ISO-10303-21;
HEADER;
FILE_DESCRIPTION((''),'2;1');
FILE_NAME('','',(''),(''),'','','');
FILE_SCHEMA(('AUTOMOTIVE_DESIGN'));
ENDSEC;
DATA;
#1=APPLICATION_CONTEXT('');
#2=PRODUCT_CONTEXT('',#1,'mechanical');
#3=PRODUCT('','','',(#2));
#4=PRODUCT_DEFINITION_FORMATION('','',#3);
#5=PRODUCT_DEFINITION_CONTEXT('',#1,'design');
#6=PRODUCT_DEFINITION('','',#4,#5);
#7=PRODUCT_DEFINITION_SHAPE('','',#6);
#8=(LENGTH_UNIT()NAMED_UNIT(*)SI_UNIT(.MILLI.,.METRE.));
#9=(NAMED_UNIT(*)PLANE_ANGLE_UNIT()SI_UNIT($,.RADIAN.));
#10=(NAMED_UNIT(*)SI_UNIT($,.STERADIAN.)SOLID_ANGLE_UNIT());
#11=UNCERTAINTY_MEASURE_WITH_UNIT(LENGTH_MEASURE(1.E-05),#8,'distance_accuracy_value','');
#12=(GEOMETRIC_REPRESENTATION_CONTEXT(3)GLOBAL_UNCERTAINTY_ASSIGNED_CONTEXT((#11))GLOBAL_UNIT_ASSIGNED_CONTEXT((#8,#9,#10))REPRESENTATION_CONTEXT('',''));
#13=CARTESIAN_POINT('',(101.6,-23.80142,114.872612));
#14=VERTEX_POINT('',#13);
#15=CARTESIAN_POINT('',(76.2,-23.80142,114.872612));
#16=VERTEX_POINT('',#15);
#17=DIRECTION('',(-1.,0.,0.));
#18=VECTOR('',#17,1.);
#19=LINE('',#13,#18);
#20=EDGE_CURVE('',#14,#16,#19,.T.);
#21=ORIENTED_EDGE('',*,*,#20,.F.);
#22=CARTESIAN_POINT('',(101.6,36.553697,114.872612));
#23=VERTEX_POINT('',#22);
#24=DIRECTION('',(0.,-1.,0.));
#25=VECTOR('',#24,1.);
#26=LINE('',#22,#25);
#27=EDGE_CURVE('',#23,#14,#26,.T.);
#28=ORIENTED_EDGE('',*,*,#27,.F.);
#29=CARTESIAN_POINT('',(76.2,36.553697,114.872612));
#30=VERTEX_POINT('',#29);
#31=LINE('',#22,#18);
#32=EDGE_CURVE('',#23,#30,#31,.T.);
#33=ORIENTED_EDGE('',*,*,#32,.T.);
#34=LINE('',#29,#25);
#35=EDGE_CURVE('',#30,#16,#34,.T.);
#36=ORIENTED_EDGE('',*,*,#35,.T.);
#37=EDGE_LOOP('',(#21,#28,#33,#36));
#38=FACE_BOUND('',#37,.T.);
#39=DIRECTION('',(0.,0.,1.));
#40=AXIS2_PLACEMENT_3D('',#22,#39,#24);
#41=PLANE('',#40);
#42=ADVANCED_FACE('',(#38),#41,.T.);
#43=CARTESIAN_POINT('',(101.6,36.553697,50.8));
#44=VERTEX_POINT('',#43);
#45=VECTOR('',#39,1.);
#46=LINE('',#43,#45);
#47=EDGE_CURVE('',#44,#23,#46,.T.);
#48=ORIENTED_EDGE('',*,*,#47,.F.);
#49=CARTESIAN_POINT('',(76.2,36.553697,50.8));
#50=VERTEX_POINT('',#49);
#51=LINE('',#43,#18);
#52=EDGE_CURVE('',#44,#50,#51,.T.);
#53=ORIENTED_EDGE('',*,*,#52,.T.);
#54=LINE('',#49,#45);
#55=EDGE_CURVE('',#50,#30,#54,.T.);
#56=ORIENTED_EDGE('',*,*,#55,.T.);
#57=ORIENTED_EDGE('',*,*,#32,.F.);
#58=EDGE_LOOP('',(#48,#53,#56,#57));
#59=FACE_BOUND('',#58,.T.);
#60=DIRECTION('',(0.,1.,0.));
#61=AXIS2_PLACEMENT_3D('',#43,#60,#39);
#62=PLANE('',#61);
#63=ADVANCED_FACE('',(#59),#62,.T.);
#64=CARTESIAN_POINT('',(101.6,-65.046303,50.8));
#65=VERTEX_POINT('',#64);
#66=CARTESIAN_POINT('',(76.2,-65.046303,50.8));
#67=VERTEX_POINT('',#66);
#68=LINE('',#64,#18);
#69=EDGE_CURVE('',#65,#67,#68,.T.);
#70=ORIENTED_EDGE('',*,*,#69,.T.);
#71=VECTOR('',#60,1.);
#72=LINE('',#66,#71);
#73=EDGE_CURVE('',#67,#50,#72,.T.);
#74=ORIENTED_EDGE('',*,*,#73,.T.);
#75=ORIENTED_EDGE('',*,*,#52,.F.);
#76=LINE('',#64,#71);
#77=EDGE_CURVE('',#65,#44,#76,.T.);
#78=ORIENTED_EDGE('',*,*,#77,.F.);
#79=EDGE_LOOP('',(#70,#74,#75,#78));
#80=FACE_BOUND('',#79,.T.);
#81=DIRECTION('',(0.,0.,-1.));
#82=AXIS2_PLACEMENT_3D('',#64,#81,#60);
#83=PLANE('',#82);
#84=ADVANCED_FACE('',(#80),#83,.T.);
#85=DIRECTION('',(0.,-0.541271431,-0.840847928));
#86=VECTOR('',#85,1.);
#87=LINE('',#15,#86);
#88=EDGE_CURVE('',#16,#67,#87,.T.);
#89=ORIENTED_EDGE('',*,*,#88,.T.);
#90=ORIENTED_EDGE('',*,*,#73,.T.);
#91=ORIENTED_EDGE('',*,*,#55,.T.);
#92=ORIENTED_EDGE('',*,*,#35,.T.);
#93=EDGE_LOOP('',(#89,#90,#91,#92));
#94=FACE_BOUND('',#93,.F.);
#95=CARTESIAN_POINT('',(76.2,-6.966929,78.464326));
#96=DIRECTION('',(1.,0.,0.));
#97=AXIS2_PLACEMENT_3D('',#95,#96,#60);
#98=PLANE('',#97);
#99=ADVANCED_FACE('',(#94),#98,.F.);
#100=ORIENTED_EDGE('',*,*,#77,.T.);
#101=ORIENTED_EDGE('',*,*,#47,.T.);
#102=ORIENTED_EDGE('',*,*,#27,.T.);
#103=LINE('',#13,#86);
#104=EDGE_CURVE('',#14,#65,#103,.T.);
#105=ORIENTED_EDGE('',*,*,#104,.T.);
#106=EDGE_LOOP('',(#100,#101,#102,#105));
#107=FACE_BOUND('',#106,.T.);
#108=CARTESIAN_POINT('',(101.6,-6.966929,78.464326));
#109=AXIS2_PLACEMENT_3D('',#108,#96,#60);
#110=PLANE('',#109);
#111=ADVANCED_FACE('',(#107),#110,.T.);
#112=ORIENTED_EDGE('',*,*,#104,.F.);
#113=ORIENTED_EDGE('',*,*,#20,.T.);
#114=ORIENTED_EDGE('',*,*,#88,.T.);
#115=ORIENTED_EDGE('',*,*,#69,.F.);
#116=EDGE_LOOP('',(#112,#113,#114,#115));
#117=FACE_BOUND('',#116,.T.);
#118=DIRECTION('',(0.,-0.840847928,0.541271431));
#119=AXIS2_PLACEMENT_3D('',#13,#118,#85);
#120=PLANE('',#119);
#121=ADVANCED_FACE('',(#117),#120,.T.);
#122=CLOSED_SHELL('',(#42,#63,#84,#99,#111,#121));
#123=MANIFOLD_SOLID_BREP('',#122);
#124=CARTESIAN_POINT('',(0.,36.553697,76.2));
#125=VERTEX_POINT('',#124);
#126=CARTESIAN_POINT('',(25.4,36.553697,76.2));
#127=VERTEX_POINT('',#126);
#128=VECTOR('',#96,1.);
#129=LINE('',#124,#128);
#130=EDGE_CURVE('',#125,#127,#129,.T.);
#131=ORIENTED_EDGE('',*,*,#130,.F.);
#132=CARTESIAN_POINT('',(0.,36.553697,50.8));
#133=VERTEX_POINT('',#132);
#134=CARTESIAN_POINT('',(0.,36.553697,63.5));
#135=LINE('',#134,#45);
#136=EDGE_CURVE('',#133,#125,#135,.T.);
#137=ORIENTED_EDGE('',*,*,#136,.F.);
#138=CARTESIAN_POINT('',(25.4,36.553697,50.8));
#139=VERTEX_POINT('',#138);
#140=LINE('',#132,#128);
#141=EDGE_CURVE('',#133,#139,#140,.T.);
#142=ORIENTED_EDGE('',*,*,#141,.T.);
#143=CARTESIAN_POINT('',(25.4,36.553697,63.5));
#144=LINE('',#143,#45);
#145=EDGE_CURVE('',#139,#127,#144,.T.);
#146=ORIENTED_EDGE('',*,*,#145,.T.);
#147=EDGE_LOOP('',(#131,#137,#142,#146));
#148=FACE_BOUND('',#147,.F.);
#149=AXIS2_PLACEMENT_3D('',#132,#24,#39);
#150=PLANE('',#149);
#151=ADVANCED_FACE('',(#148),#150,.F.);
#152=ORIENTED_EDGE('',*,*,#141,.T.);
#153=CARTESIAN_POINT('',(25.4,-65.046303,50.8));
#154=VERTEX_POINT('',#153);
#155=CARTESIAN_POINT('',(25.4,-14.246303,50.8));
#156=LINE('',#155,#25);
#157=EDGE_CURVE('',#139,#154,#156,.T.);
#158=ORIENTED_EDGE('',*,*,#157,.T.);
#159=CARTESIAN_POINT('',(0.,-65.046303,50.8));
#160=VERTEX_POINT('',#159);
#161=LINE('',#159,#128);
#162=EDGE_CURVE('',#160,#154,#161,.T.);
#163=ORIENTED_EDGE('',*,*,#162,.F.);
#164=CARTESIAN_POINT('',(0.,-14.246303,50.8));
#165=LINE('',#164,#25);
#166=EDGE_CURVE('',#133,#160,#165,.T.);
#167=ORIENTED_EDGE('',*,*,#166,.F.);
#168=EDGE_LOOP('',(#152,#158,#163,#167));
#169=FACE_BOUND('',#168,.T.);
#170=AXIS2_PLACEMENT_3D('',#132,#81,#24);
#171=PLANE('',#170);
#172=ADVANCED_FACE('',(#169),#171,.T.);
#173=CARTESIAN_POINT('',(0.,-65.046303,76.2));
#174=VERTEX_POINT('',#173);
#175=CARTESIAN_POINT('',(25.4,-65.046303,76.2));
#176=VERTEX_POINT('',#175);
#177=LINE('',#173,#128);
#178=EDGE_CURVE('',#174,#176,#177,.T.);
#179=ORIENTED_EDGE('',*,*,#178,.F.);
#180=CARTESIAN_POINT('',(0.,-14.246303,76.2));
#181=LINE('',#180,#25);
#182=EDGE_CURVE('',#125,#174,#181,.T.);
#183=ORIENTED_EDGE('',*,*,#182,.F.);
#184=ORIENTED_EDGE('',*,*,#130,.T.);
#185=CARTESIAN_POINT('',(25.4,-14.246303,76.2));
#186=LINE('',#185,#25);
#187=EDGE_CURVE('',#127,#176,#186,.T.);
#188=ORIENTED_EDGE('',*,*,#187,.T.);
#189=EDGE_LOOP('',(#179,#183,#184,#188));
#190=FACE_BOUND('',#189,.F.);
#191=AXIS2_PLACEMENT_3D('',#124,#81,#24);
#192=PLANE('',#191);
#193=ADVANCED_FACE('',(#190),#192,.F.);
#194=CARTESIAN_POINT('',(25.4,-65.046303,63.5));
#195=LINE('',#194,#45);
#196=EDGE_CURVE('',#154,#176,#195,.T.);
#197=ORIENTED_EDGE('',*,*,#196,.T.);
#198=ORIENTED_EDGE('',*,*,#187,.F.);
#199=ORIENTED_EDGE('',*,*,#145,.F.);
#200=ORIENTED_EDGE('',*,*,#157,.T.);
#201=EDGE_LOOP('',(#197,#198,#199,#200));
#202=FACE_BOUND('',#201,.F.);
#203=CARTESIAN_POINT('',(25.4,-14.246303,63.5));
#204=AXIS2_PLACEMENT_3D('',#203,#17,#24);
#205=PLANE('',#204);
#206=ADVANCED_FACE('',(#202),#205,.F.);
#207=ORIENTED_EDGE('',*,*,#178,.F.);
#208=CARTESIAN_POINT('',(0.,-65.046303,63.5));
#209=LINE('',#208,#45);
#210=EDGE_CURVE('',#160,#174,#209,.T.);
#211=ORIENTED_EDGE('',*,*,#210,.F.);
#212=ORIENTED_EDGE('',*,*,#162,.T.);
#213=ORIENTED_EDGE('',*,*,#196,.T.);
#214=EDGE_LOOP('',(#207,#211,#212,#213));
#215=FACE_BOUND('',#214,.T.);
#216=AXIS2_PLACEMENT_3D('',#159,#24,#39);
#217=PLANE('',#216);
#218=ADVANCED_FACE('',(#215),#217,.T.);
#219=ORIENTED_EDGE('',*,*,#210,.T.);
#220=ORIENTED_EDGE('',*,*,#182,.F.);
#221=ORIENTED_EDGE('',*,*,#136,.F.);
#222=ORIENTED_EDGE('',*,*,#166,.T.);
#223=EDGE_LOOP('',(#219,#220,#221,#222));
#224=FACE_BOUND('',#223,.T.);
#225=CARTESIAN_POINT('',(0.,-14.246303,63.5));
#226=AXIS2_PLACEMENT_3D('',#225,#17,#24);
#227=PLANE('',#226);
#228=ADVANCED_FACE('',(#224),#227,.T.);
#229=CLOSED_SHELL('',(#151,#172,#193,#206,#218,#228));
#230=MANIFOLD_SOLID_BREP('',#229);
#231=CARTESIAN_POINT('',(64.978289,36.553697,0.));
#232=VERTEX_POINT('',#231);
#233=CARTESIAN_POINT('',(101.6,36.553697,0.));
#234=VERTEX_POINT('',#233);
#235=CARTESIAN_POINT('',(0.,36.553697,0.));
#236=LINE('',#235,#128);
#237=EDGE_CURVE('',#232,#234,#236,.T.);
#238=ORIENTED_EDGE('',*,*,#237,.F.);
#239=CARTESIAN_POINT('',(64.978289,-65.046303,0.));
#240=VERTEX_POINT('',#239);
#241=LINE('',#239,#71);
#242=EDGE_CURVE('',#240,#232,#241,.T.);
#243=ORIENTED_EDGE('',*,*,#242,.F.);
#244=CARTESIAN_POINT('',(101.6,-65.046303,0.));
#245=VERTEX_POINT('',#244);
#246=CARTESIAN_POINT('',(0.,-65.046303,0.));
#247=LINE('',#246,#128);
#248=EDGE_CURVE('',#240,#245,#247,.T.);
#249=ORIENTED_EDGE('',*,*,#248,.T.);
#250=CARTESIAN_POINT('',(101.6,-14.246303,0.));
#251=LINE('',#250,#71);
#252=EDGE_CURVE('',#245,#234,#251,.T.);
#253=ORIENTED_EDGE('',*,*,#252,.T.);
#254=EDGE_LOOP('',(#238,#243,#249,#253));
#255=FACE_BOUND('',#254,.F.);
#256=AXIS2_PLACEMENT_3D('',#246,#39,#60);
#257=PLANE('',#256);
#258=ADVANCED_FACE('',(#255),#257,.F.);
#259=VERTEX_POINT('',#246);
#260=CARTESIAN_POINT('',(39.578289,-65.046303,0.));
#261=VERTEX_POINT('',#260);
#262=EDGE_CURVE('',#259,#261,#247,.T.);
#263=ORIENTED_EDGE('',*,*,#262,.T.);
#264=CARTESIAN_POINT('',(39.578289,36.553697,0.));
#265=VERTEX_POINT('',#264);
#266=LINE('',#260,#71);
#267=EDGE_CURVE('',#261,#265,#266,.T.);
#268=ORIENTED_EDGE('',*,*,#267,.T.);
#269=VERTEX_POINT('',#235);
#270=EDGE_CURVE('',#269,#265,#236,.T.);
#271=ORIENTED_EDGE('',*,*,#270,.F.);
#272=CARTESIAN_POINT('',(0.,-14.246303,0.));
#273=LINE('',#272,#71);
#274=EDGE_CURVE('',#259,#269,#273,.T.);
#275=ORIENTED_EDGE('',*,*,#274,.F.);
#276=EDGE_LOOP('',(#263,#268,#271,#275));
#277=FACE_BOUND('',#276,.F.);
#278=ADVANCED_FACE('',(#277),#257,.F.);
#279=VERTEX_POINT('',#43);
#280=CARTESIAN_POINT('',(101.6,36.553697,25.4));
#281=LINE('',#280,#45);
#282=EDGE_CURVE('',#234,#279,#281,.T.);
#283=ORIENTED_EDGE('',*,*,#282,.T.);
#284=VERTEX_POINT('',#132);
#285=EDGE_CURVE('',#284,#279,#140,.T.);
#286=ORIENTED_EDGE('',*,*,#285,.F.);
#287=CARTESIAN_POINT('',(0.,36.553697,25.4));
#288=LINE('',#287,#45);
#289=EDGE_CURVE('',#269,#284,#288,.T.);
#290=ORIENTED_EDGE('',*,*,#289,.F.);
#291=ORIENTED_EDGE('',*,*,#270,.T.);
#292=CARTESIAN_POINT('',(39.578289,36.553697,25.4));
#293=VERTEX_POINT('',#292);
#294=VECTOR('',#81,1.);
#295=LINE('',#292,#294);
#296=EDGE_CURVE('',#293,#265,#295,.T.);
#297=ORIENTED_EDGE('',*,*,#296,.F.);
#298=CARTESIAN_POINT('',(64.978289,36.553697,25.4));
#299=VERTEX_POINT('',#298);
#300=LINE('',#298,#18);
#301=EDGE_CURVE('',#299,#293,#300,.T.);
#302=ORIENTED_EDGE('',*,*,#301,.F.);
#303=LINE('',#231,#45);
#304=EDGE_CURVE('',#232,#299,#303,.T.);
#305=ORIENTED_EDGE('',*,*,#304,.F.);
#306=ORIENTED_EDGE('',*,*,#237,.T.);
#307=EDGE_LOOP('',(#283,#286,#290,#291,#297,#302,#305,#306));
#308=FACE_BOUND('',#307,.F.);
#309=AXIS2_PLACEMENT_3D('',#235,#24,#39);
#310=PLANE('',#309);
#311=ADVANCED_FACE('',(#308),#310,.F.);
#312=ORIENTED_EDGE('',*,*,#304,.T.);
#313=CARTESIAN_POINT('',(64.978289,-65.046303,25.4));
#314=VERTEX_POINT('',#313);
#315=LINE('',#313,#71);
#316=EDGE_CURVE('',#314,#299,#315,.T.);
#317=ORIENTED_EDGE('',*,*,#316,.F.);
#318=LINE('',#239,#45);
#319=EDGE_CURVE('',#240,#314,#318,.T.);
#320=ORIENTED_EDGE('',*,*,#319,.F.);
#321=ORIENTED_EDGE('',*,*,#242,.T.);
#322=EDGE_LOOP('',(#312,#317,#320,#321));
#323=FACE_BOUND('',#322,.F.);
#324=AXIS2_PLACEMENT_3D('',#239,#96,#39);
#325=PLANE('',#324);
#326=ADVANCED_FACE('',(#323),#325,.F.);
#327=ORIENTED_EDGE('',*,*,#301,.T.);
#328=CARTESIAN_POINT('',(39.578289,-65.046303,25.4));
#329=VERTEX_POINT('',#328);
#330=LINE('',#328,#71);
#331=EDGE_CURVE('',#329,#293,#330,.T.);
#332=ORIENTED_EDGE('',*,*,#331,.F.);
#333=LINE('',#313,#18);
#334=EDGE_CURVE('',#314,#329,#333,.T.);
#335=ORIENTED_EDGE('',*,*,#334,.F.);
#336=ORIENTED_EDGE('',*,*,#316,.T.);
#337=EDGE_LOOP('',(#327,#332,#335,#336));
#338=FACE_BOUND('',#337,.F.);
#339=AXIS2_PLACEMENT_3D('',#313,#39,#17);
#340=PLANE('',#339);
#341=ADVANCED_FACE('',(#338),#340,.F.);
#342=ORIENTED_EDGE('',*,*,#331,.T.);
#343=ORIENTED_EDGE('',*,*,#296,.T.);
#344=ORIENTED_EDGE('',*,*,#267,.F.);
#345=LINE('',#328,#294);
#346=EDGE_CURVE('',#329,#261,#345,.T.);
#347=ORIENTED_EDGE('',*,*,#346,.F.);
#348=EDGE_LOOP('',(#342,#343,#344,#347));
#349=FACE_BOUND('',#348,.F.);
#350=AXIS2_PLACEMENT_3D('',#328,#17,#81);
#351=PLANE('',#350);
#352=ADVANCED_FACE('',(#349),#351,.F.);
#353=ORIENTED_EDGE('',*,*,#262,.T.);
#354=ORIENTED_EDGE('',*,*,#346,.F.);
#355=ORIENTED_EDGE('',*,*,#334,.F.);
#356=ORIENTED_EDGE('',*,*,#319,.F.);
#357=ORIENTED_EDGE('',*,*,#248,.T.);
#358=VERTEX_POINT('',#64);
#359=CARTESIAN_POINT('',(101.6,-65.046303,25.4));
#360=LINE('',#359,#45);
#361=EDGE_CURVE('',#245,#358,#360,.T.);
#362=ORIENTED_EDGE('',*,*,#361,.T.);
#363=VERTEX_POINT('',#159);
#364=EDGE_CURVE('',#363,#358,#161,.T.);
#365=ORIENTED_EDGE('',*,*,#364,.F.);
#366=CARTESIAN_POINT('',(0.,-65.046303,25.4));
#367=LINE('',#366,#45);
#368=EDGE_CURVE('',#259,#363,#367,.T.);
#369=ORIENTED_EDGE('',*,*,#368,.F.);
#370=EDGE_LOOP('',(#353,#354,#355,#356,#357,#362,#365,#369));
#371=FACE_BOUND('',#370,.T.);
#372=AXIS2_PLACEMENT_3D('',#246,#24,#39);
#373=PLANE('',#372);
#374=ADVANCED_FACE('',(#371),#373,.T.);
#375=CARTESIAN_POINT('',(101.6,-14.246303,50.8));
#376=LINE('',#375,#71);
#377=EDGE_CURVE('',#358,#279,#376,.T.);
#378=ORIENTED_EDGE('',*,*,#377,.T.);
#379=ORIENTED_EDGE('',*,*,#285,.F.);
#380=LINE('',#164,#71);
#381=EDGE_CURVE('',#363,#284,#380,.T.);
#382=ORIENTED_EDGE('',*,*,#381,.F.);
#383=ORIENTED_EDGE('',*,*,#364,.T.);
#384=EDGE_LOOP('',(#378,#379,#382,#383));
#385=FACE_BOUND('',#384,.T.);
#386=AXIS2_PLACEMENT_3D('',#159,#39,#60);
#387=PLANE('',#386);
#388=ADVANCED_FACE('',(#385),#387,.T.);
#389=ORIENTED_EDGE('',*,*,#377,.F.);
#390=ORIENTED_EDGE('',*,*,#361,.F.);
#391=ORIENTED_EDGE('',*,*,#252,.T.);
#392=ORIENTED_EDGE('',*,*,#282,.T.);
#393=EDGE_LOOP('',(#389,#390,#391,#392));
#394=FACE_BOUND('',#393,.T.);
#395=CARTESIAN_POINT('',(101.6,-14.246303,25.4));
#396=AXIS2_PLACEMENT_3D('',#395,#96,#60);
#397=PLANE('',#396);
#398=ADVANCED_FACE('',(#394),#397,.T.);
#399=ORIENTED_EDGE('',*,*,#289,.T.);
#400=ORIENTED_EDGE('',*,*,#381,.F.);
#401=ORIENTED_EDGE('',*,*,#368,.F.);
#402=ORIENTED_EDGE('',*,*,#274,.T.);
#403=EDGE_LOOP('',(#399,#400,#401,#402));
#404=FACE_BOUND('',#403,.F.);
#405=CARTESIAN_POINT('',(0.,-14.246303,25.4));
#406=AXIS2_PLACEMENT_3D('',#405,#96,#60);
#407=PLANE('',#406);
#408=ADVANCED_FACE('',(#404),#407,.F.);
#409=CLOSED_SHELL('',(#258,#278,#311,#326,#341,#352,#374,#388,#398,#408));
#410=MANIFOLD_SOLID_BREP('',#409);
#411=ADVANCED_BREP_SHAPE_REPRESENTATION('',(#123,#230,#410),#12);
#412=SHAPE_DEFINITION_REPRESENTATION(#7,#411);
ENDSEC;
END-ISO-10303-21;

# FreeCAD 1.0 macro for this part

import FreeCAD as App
import Part
import Sketcher
Q = App.Units.Quantity


def add_polygon(sketch, points):
    """Adds a closed chain of lines whose ends are joined by coincident constraints."""
    first, n = sketch.GeometryCount, len(points)
    for a, b in zip(points, points[1:] + points[:1]):
        sketch.addGeometry(Part.LineSegment(App.Vector(*a, 0), App.Vector(*b, 0)), False)
    for i in range(n):
        sketch.addConstraint(Sketcher.Constraint("Coincident", first + i, 2, first + (i + 1) % n, 1))

doc = App.newDocument("Part")
body = doc.addObject("PartDesign::Body", "Body")

# Sketch on YZ plane
sketch1 = body.newObject("Sketcher::SketchObject", "Sketch")
sketch1.AttachmentSupport = (doc.getObject("YZ_Plane"), [""])
sketch1.MapMode = "FlatFace"
add_polygon(sketch1, [(-65, 51), (-65, 0), (37, 0), (37, 51)])  # lines 0-3
sketch1.addConstraint([
    Sketcher.Constraint("Vertical", 0),
    Sketcher.Constraint("Horizontal", 1),
    Sketcher.Constraint("Vertical", 2),
    Sketcher.Constraint("Horizontal", 3),
    Sketcher.Constraint("PointOnObject", 0, 2, -1),
    Sketcher.Constraint("DistanceX", 1, 1, 1, 2, Q("4 in")),
    Sketcher.Constraint("DistanceY", 0, 2, 0, 1, Q("2 in")),
    Sketcher.Constraint("DistanceX", 0, 2, -1, 1, Q("65.046303 mm")),
])
pad1 = body.newObject("PartDesign::Pad", "Pad")
pad1.Profile = sketch1
pad1.Length = Q("4 in")

# Sketch on XZ plane
sketch2 = body.newObject("Sketcher::SketchObject", "Sketch001")
sketch2.AttachmentSupport = (doc.getObject("XZ_Plane"), [""])
sketch2.MapMode = "FlatFace"
sketch2.AttachmentOffset = App.Placement(App.Vector(0, 0, 65.046303), App.Rotation())
add_polygon(sketch2, [(40, 0), (65, 0), (65, 25), (40, 25)])  # lines 0-3
sketch2.addConstraint([
    Sketcher.Constraint("Horizontal", 0),
    Sketcher.Constraint("Vertical", 1),
    Sketcher.Constraint("Horizontal", 2),
    Sketcher.Constraint("Vertical", 3),
    Sketcher.Constraint("PointOnObject", 0, 2, -1),
    Sketcher.Constraint("Equal", 2, 1),
    Sketcher.Constraint("DistanceX", 0, 1, 0, 2, Q("1 in")),
    Sketcher.Constraint("DistanceX", -1, 1, 0, 2, Q("64.978289 mm")),
])
pocket1 = body.newObject("PartDesign::Pocket", "Pocket")
pocket1.Profile = sketch2
pocket1.Length = Q("4 in")
body2 = doc.addObject("PartDesign::Body", "Body001")

# Sketch on YZ plane
sketch3 = body2.newObject("Sketcher::SketchObject", "Sketch002")
sketch3.AttachmentSupport = (doc.getObject("YZ_Plane001"), [""])
sketch3.MapMode = "FlatFace"
add_polygon(sketch3, [(37, 76), (37, 51), (-65, 51), (-65, 76)])  # lines 0-3
sketch3.addConstraint([
    Sketcher.Constraint("Vertical", 0),
    Sketcher.Constraint("Horizontal", 1),
    Sketcher.Constraint("Vertical", 2),
    Sketcher.Constraint("Horizontal", 3),
    Sketcher.Constraint("DistanceX", 1, 2, 1, 1, Q("4 in")),
    Sketcher.Constraint("DistanceY", 0, 2, 0, 1, Q("1 in")),
    Sketcher.Constraint("DistanceY", -1, 1, 0, 2, Q("2 in")),
    Sketcher.Constraint("DistanceX", -1, 1, 0, 2, Q("36.553697 mm")),
])
pad2 = body2.newObject("PartDesign::Pad", "Pad001")
pad2.Profile = sketch3
pad2.Length = Q("1 in")
body3 = doc.addObject("PartDesign::Body", "Body002")

# Sketch on YZ plane
sketch4 = body3.newObject("Sketcher::SketchObject", "Sketch003")
sketch4.AttachmentSupport = (doc.getObject("YZ_Plane002"), [""])
sketch4.MapMode = "FlatFace"
sketch4.AttachmentOffset = App.Placement(App.Vector(0, 0, 4 * 25.4), App.Rotation())
add_polygon(sketch4, [(-24, 115), (-65, 51), (37, 51), (37, 115)])  # lines 0-3
sketch4.addConstraint([
    Sketcher.Constraint("Horizontal", 1),
    Sketcher.Constraint("Vertical", 2),
    Sketcher.Constraint("Horizontal", 3),
    Sketcher.Constraint("DistanceX", 1, 1, 1, 2, Q("4 in")),
    Sketcher.Constraint("Distance", 0, Q("3 in")),
    Sketcher.Constraint("DistanceY", -1, 1, 0, 2, Q("2 in")),
    Sketcher.Constraint("DistanceX", 3, 2, 3, 1, Q("60.355117 mm")),
    Sketcher.Constraint("DistanceX", 3, 2, -1, 1, Q("23.80142 mm")),
])
pad3 = body3.newObject("PartDesign::Pad", "Pad002")
pad3.Profile = sketch4
pad3.Length = Q("1 in")
pad3.Reversed = True

doc.recompute()
